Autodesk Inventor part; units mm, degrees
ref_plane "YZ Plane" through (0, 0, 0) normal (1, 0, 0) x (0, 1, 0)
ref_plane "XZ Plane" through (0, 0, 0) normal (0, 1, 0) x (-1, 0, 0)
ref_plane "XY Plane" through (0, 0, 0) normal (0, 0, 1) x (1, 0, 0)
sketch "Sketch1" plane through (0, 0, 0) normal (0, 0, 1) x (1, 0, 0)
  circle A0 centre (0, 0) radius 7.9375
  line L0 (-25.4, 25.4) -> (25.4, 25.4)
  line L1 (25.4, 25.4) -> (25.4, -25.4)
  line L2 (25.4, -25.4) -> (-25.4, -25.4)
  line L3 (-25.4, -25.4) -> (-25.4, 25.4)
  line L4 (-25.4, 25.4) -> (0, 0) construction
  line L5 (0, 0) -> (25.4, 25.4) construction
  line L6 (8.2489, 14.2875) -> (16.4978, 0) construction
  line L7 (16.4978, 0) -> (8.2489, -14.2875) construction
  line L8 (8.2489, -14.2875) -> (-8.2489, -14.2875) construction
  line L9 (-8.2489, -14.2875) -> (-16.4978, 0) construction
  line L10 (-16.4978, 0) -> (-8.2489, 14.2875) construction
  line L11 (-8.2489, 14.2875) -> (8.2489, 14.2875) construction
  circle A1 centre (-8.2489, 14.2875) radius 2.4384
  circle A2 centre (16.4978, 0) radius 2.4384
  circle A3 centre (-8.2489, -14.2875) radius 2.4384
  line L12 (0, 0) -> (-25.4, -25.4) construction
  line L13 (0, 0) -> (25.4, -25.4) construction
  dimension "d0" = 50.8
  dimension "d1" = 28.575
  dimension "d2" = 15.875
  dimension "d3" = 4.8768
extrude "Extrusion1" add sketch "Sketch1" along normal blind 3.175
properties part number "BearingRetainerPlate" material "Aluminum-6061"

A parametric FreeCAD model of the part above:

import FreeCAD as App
import Part
import Sketcher
from FreeCAD import Vector
Q = App.Units.Quantity


def add_polygon(sketch, points):
    """Adds a closed chain of lines whose ends are joined by coincident constraints."""
    first, n = sketch.GeometryCount, len(points)
    for a, b in zip(points, points[1:] + points[:1]):
        sketch.addGeometry(Part.LineSegment(App.Vector(*a, 0), App.Vector(*b, 0)), False)
    for i in range(n):
        sketch.addConstraint(Sketcher.Constraint("Coincident", first + i, 2, first + (i + 1) % n, 1))

doc = App.newDocument("Part")
body = doc.addObject("PartDesign::Body", "Body")

sketch1 = body.newObject("Sketcher::SketchObject", "Sketch")
sketch1.AttachmentSupport = (doc.getObject("XY_Plane"), [""])
sketch1.MapMode = "FlatFace"
add_polygon(sketch1, [(25.4, 25.4), (-25.4, 25.4), (-25.4, -25.4), (25.4, -25.4)])
sketch1.addGeometry(Part.Circle(Vector(-8.2, -14.3, 0), Vector(0, 0, 1), 2.4), False)
sketch1.addGeometry(Part.Circle(Vector(0, 0, 0), Vector(0, 0, 1), 7.9), False)
sketch1.addGeometry(Part.Circle(Vector(16.5, 0, 0), Vector(0, 0, 1), 2.4), False)
sketch1.addGeometry(Part.Circle(Vector(-8.2, 14.3, 0), Vector(0, 0, 1), 2.4), False)
sketch1.addConstraint([
    Sketcher.Constraint("Horizontal", 0),
    Sketcher.Constraint("Vertical", 1),
    Sketcher.Constraint("Horizontal", 2),
    Sketcher.Constraint("Vertical", 3),
    Sketcher.Constraint("Coincident", 5, 3, -1, 1),
    Sketcher.Constraint("Equal", 4, 6),
    Sketcher.Constraint("Equal", 6, 7),
    Sketcher.Constraint("Symmetric", 0, 2, 2, 2, -1, 1),
    Sketcher.Constraint("Symmetric", 4, 3, 7, 3, -1),
    Sketcher.Constraint("PointOnObject", 6, 3, -1),
    Sketcher.Constraint("Equal", 2, 1),
    Sketcher.Constraint("DistanceX", 0, 2, 0, 1, Q("2 in")),
    Sketcher.Constraint("Diameter", 4, Q("0.192 in")),
    Sketcher.Constraint("Diameter", 5, Q("0.625 in")),
    Sketcher.Constraint("DistanceY", 4, 3, 7, 3, Q("1.125 in")),
    Sketcher.Constraint("DistanceX", 4, 3, -1, 1, Q("8.249 mm")),
    Sketcher.Constraint("DistanceX", -1, 1, 6, 3, Q("16.4978 mm")),
])
pad1 = body.newObject("PartDesign::Pad", "Pad")
pad1.Profile = sketch1
pad1.Length = Q("0.125 in")

doc.recompute()
